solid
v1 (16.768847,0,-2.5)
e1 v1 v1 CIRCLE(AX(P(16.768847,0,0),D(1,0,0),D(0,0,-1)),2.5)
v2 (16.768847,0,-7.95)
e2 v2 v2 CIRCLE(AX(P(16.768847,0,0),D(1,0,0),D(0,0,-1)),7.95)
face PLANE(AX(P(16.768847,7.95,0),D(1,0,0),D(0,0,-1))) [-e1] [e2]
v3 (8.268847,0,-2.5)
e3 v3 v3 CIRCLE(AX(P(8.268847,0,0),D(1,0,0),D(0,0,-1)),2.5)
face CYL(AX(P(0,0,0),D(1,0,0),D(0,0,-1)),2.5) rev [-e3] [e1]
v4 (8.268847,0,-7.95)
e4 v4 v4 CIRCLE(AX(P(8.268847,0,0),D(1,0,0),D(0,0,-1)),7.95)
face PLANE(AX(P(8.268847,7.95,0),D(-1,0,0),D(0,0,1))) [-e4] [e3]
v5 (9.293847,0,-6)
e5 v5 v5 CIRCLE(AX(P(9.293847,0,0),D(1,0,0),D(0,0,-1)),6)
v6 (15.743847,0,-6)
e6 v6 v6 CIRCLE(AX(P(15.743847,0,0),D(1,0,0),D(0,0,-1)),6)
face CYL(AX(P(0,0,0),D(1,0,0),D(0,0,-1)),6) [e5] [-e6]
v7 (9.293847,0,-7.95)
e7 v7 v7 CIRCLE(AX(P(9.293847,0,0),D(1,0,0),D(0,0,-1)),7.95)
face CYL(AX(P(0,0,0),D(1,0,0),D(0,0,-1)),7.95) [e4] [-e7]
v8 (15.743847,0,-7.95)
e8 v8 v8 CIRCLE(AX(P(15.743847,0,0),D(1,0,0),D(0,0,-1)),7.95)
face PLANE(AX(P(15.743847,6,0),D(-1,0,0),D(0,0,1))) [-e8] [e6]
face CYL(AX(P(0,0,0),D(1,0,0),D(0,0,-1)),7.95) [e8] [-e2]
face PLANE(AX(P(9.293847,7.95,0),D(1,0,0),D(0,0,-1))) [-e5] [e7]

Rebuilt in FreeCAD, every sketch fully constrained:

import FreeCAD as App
import Part
import Sketcher
from FreeCAD import Vector
Q = App.Units.Quantity

doc = App.newDocument("Part")
body = doc.addObject("PartDesign::Body", "Body")

# Sketch on XY plane
sketch1 = body.newObject("Sketcher::SketchObject", "Sketch")
sketch1.AttachmentSupport = (doc.getObject("XY_Plane"), [""])
sketch1.MapMode = "FlatFace"
sketch1.addGeometry(Part.LineSegment(Vector(8.3, 8, 0), Vector(8.3, 2.5, 0)), False)
sketch1.addGeometry(Part.LineSegment(Vector(8.3, 2.5, 0), Vector(16.8, 2.5, 0)), False)
sketch1.addGeometry(Part.LineSegment(Vector(16.8, 2.5, 0), Vector(16.8, 8, 0)), False)
sketch1.addGeometry(Part.LineSegment(Vector(16.8, 8, 0), Vector(15.7, 8, 0)), False)
sketch1.addGeometry(Part.LineSegment(Vector(15.7, 8, 0), Vector(15.7, 6, 0)), False)
sketch1.addGeometry(Part.LineSegment(Vector(15.7, 6, 0), Vector(9.3, 6, 0)), False)
sketch1.addGeometry(Part.LineSegment(Vector(9.3, 6, 0), Vector(9.3, 8, 0)), False)
sketch1.addGeometry(Part.LineSegment(Vector(9.3, 8, 0), Vector(8.3, 8, 0)), False)
sketch1.addConstraint(Sketcher.Constraint("Coincident", 0, 2, 1, 1))
sketch1.addConstraint(Sketcher.Constraint("Coincident", 1, 2, 2, 1))
sketch1.addConstraint(Sketcher.Constraint("Coincident", 2, 2, 3, 1))
sketch1.addConstraint(Sketcher.Constraint("Coincident", 3, 2, 4, 1))
sketch1.addConstraint(Sketcher.Constraint("Coincident", 4, 2, 5, 1))
sketch1.addConstraint(Sketcher.Constraint("Coincident", 5, 2, 6, 1))
sketch1.addConstraint(Sketcher.Constraint("Coincident", 6, 2, 7, 1))
sketch1.addConstraint(Sketcher.Constraint("Coincident", 7, 2, 0, 1))
sketch1.addConstraint(Sketcher.Constraint("Vertical", 0))
sketch1.addConstraint(Sketcher.Constraint("Horizontal", 1))
sketch1.addConstraint(Sketcher.Constraint("Vertical", 2))
sketch1.addConstraint(Sketcher.Constraint("Horizontal", 3))
sketch1.addConstraint(Sketcher.Constraint("Vertical", 4))
sketch1.addConstraint(Sketcher.Constraint("Horizontal", 5))
sketch1.addConstraint(Sketcher.Constraint("Vertical", 6))
sketch1.addConstraint(Sketcher.Constraint("Horizontal", 7))
sketch1.addConstraint(Sketcher.Constraint("Horizontal", 3, 2, 6, 2))
sketch1.addConstraint(Sketcher.Constraint("Equal", 3, 7))
sketch1.addConstraint(Sketcher.Constraint("DistanceX", 1, 1, 1, 2, Q("8.5 mm")))
sketch1.addConstraint(Sketcher.Constraint("DistanceY", -1, 1, 4, 2, Q("6 mm")))
sketch1.addConstraint(Sketcher.Constraint("DistanceX", 5, 2, 5, 1, Q("6.45 mm")))
sketch1.addConstraint(Sketcher.Constraint("DistanceY", 0, 2, 0, 1, Q("5.45 mm")))
sketch1.addConstraint(Sketcher.Constraint("DistanceY", 4, 2, 4, 1, Q("1.95 mm")))
sketch1.addConstraint(Sketcher.Constraint("DistanceX", -1, 1, 0, 2, Q("8.268847 mm")))
revolution = body.newObject("PartDesign::Revolution", "Revolution")
revolution.Profile = sketch1
revolution.ReferenceAxis = (sketch1, ["H_Axis"])
revolution.Angle = 360

doc.recompute()
